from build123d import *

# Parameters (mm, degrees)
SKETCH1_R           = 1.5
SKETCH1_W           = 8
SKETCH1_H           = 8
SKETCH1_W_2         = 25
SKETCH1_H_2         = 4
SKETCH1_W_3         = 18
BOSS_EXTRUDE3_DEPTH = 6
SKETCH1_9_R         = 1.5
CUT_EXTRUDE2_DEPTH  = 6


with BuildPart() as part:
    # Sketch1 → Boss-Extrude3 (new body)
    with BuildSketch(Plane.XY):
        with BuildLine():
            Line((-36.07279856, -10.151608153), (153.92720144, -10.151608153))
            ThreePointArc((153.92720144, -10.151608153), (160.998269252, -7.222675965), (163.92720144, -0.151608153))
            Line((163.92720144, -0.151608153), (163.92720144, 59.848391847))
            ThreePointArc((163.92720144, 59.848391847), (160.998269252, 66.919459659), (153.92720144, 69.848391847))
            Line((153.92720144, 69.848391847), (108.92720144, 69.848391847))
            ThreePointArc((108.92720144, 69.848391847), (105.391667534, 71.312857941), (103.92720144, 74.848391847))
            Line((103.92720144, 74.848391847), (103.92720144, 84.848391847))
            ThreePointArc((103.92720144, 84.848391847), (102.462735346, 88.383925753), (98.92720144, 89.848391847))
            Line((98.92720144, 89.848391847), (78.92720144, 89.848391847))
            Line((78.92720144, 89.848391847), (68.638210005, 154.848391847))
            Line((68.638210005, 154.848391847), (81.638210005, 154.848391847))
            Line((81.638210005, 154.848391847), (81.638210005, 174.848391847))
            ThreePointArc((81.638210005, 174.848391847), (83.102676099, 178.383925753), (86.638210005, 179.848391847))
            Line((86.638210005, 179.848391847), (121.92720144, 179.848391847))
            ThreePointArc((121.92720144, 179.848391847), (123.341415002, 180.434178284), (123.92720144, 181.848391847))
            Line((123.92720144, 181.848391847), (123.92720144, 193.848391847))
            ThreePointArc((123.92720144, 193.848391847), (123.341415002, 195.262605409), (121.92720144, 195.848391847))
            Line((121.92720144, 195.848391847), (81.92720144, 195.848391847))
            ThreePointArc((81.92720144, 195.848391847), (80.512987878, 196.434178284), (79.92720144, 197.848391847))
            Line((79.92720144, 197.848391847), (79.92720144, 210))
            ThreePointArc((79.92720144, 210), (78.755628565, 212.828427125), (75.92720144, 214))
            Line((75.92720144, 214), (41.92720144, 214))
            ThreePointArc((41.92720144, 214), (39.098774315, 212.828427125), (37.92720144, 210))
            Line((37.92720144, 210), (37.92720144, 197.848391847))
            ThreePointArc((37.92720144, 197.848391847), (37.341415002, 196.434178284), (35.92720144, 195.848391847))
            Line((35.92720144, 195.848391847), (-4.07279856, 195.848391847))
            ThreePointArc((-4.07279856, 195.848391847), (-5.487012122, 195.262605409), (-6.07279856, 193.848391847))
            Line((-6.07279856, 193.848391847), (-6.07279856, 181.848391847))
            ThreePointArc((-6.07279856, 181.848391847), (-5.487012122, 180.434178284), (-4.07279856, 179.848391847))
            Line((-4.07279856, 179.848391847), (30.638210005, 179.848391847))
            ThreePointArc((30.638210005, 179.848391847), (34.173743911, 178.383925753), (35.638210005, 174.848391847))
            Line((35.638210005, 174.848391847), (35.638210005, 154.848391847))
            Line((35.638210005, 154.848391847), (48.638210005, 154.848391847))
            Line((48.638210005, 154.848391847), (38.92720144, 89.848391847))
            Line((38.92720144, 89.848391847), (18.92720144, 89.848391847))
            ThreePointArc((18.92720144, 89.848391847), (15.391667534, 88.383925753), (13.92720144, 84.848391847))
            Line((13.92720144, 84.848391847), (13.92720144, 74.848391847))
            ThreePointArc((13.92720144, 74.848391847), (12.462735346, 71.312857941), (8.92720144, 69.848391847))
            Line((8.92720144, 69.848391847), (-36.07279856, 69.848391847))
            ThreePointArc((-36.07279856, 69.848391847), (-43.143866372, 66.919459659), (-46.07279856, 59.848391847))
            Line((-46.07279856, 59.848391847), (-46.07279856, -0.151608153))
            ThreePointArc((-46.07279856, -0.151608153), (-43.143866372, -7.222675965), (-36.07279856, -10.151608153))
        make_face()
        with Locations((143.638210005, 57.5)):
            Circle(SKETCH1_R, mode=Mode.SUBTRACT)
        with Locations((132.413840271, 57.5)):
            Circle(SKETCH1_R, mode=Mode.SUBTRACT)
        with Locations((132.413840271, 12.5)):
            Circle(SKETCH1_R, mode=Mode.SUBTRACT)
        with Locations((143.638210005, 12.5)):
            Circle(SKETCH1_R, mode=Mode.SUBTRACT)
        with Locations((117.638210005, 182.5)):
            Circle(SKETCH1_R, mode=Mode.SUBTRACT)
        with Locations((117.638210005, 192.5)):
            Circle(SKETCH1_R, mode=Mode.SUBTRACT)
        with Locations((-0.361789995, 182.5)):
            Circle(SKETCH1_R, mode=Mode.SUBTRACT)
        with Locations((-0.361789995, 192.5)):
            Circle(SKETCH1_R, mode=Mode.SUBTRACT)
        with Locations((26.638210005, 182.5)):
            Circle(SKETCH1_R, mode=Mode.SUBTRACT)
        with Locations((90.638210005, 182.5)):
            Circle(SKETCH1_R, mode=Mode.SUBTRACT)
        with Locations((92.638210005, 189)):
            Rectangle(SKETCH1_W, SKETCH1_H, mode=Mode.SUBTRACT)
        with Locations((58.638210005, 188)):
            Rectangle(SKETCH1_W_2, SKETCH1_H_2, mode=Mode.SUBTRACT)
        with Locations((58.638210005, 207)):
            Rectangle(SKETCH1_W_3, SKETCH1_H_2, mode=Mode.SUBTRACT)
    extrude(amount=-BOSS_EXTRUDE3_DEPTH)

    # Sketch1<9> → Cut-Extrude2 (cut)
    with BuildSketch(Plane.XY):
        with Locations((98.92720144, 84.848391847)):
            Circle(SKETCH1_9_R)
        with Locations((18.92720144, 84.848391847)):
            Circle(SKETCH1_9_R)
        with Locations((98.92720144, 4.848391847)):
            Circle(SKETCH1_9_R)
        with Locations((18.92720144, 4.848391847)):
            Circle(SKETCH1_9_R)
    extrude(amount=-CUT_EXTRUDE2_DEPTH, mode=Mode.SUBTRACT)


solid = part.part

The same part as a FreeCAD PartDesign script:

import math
import FreeCAD as App
import Part
import Sketcher

V = App.Vector
Q = App.Units.Quantity

doc = App.newDocument("Part")
params = doc.addObject("Spreadsheet::Sheet", "Params")
for row, (alias, value) in enumerate([
    ("sketch1_diameter", "3 mm"),
    ("sketch1_radius", "10 mm"),
    ("sketch1_radius2", "5 mm"),
    ("sketch1_radius3", "2 mm"),
    ("sketch1_radius4", "4 mm"),
    ("pad1_length", "6 mm"),
    ("sketch2_diameter", "3 mm"),
    ("pocket1_length", "6 mm"),
], start=1):
    params.set(f"A{row}", alias)
    params.set(f"B{row}", "=" + value)
    params.setAlias(f"B{row}", alias)

body = doc.addObject("PartDesign::Body", "Body")

# Sketch on XY plane
sketch1 = body.newObject("Sketcher::SketchObject", "Sketch")
sketch1.AttachmentSupport = (doc.getObject("XY_Plane"), [""])
sketch1.MapMode = "FlatFace"
sketch1.addGeometry(Part.LineSegment(V(-36.1, -10.2, 0), V(153.9, -10.2, 0)), False)
sketch1.addGeometry(Part.ArcOfCircle(Part.Circle(V(153.9, -0.2, 0), V(0, 0, 1), 10), math.radians(-90), math.radians(0)), False)
sketch1.addGeometry(Part.LineSegment(V(163.9, -0.2, 0), V(163.9, 59.8, 0)), False)
sketch1.addGeometry(Part.ArcOfCircle(Part.Circle(V(153.9, 59.8, 0), V(0, 0, 1), 10), math.radians(0), math.radians(90)), False)
sketch1.addGeometry(Part.LineSegment(V(153.9, 69.8, 0), V(108.9, 69.8, 0)), False)
sketch1.addGeometry(Part.ArcOfCircle(Part.Circle(V(108.9, 74.8, 0), V(0, 0, 1), 5), math.radians(180), math.radians(270)), False)
sketch1.addGeometry(Part.LineSegment(V(103.9, 74.8, 0), V(103.9, 84.8, 0)), False)
sketch1.addGeometry(Part.ArcOfCircle(Part.Circle(V(98.9, 84.8, 0), V(0, 0, 1), 5), math.radians(0), math.radians(90)), False)
sketch1.addGeometry(Part.LineSegment(V(98.9, 89.8, 0), V(78.9, 89.8, 0)), False)
sketch1.addGeometry(Part.LineSegment(V(78.9, 89.8, 0), V(68.6, 154.8, 0)), False)
sketch1.addGeometry(Part.LineSegment(V(68.6, 154.8, 0), V(81.6, 154.8, 0)), False)
sketch1.addGeometry(Part.LineSegment(V(81.6, 154.8, 0), V(81.6, 174.8, 0)), False)
sketch1.addGeometry(Part.ArcOfCircle(Part.Circle(V(86.6, 174.8, 0), V(0, 0, 1), 5), math.radians(90), math.radians(180)), False)
sketch1.addGeometry(Part.LineSegment(V(86.6, 179.8, 0), V(121.9, 179.8, 0)), False)
sketch1.addGeometry(Part.ArcOfCircle(Part.Circle(V(121.9, 181.8, 0), V(0, 0, 1), 2), math.radians(-90), math.radians(0)), False)
sketch1.addGeometry(Part.LineSegment(V(123.9, 181.8, 0), V(123.9, 193.8, 0)), False)
sketch1.addGeometry(Part.ArcOfCircle(Part.Circle(V(121.9, 193.8, 0), V(0, 0, 1), 2), math.radians(0), math.radians(90)), False)
sketch1.addGeometry(Part.LineSegment(V(121.9, 195.8, 0), V(81.9, 195.8, 0)), False)
sketch1.addGeometry(Part.ArcOfCircle(Part.Circle(V(81.9, 197.8, 0), V(0, 0, 1), 2), math.radians(180), math.radians(270)), False)
sketch1.addGeometry(Part.LineSegment(V(79.9, 197.8, 0), V(79.9, 210, 0)), False)
sketch1.addGeometry(Part.ArcOfCircle(Part.Circle(V(75.9, 210, 0), V(0, 0, 1), 4), math.radians(0), math.radians(90)), False)
sketch1.addGeometry(Part.LineSegment(V(75.9, 214, 0), V(41.9, 214, 0)), False)
sketch1.addGeometry(Part.ArcOfCircle(Part.Circle(V(41.9, 210, 0), V(0, 0, 1), 4), math.radians(90), math.radians(180)), False)
sketch1.addGeometry(Part.LineSegment(V(37.9, 210, 0), V(37.9, 197.8, 0)), False)
sketch1.addGeometry(Part.ArcOfCircle(Part.Circle(V(35.9, 197.8, 0), V(0, 0, 1), 2), math.radians(-90), math.radians(0)), False)
sketch1.addGeometry(Part.LineSegment(V(35.9, 195.8, 0), V(-4.1, 195.8, 0)), False)
sketch1.addGeometry(Part.ArcOfCircle(Part.Circle(V(-4.1, 193.8, 0), V(0, 0, 1), 2), math.radians(90), math.radians(180)), False)
sketch1.addGeometry(Part.LineSegment(V(-6.1, 193.8, 0), V(-6.1, 181.8, 0)), False)
sketch1.addGeometry(Part.ArcOfCircle(Part.Circle(V(-4.1, 181.8, 0), V(0, 0, 1), 2), math.radians(180), math.radians(270)), False)
sketch1.addGeometry(Part.LineSegment(V(-4.1, 179.8, 0), V(30.6, 179.8, 0)), False)
sketch1.addGeometry(Part.ArcOfCircle(Part.Circle(V(30.6, 174.8, 0), V(0, 0, 1), 5), math.radians(0), math.radians(90)), False)
sketch1.addGeometry(Part.LineSegment(V(35.6, 174.8, 0), V(35.6, 154.8, 0)), False)
sketch1.addGeometry(Part.LineSegment(V(35.6, 154.8, 0), V(48.6, 154.8, 0)), False)
sketch1.addGeometry(Part.LineSegment(V(48.6, 154.8, 0), V(38.9, 89.8, 0)), False)
sketch1.addGeometry(Part.LineSegment(V(38.9, 89.8, 0), V(18.9, 89.8, 0)), False)
sketch1.addGeometry(Part.ArcOfCircle(Part.Circle(V(18.9, 84.8, 0), V(0, 0, 1), 5), math.radians(90), math.radians(180)), False)
sketch1.addGeometry(Part.LineSegment(V(13.9, 84.8, 0), V(13.9, 74.8, 0)), False)
sketch1.addGeometry(Part.ArcOfCircle(Part.Circle(V(8.9, 74.8, 0), V(0, 0, 1), 5), math.radians(-90), math.radians(0)), False)
sketch1.addGeometry(Part.LineSegment(V(8.9, 69.8, 0), V(-36.1, 69.8, 0)), False)
sketch1.addGeometry(Part.ArcOfCircle(Part.Circle(V(-36.1, 59.8, 0), V(0, 0, 1), 10), math.radians(90), math.radians(180)), False)
sketch1.addGeometry(Part.LineSegment(V(-46.1, 59.8, 0), V(-46.1, -0.2, 0)), False)
sketch1.addGeometry(Part.ArcOfCircle(Part.Circle(V(-36.1, -0.2, 0), V(0, 0, 1), 10), math.radians(180), math.radians(270)), False)
sketch1.addGeometry(Part.Circle(V(132.4, 12.5, 0), V(0, 0, 1), 1.5), False)
sketch1.addGeometry(Part.Circle(V(143.6, 12.5, 0), V(0, 0, 1), 1.5), False)
sketch1.addGeometry(Part.Circle(V(132.4, 57.5, 0), V(0, 0, 1), 1.5), False)
sketch1.addGeometry(Part.Circle(V(143.6, 57.5, 0), V(0, 0, 1), 1.5), False)
sketch1.addGeometry(Part.Circle(V(-0.4, 182.5, 0), V(0, 0, 1), 1.5), False)
sketch1.addGeometry(Part.Circle(V(26.6, 182.5, 0), V(0, 0, 1), 1.5), False)
sketch1.addGeometry(Part.Circle(V(-0.4, 192.5, 0), V(0, 0, 1), 1.5), False)
sketch1.addGeometry(Part.LineSegment(V(71.1, 186, 0), V(46.1, 186, 0)), False)
sketch1.addGeometry(Part.LineSegment(V(46.1, 186, 0), V(46.1, 190, 0)), False)
sketch1.addGeometry(Part.LineSegment(V(46.1, 190, 0), V(71.1, 190, 0)), False)
sketch1.addGeometry(Part.LineSegment(V(71.1, 190, 0), V(71.1, 186, 0)), False)
sketch1.addGeometry(Part.LineSegment(V(67.6, 205, 0), V(49.6, 205, 0)), False)
sketch1.addGeometry(Part.LineSegment(V(49.6, 205, 0), V(49.6, 209, 0)), False)
sketch1.addGeometry(Part.LineSegment(V(49.6, 209, 0), V(67.6, 209, 0)), False)
sketch1.addGeometry(Part.LineSegment(V(67.6, 209, 0), V(67.6, 205, 0)), False)
sketch1.addGeometry(Part.Circle(V(90.6, 182.5, 0), V(0, 0, 1), 1.5), False)
sketch1.addGeometry(Part.LineSegment(V(96.6, 185, 0), V(88.6, 185, 0)), False)
sketch1.addGeometry(Part.LineSegment(V(88.6, 185, 0), V(88.6, 193, 0)), False)
sketch1.addGeometry(Part.LineSegment(V(88.6, 193, 0), V(96.6, 193, 0)), False)
sketch1.addGeometry(Part.LineSegment(V(96.6, 193, 0), V(96.6, 185, 0)), False)
sketch1.addGeometry(Part.Circle(V(117.6, 182.5, 0), V(0, 0, 1), 1.5), False)
sketch1.addGeometry(Part.Circle(V(117.6, 192.5, 0), V(0, 0, 1), 1.5), False)
sketch1.addConstraint(Sketcher.Constraint("Tangent", 0, 2, 1, 1))
sketch1.addConstraint(Sketcher.Constraint("Tangent", 1, 2, 2, 1))
sketch1.addConstraint(Sketcher.Constraint("Tangent", 2, 2, 3, 1))
sketch1.addConstraint(Sketcher.Constraint("Tangent", 3, 2, 4, 1))
sketch1.addConstraint(Sketcher.Constraint("Tangent", 4, 2, 5, 2))
sketch1.addConstraint(Sketcher.Constraint("Tangent", 5, 1, 6, 1))
sketch1.addConstraint(Sketcher.Constraint("Tangent", 6, 2, 7, 1))
sketch1.addConstraint(Sketcher.Constraint("Tangent", 7, 2, 8, 1))
sketch1.addConstraint(Sketcher.Constraint("Coincident", 8, 2, 9, 1))
sketch1.addConstraint(Sketcher.Constraint("Coincident", 9, 2, 10, 1))
sketch1.addConstraint(Sketcher.Constraint("Coincident", 10, 2, 11, 1))
sketch1.addConstraint(Sketcher.Constraint("Tangent", 11, 2, 12, 2))
sketch1.addConstraint(Sketcher.Constraint("Tangent", 12, 1, 13, 1))
sketch1.addConstraint(Sketcher.Constraint("Tangent", 13, 2, 14, 1))
sketch1.addConstraint(Sketcher.Constraint("Tangent", 14, 2, 15, 1))
sketch1.addConstraint(Sketcher.Constraint("Tangent", 15, 2, 16, 1))
sketch1.addConstraint(Sketcher.Constraint("Tangent", 16, 2, 17, 1))
sketch1.addConstraint(Sketcher.Constraint("Tangent", 17, 2, 18, 2))
sketch1.addConstraint(Sketcher.Constraint("Tangent", 18, 1, 19, 1))
sketch1.addConstraint(Sketcher.Constraint("Tangent", 19, 2, 20, 1))
sketch1.addConstraint(Sketcher.Constraint("Tangent", 20, 2, 21, 1))
sketch1.addConstraint(Sketcher.Constraint("Tangent", 21, 2, 22, 1))
sketch1.addConstraint(Sketcher.Constraint("Tangent", 22, 2, 23, 1))
sketch1.addConstraint(Sketcher.Constraint("Tangent", 23, 2, 24, 2))
sketch1.addConstraint(Sketcher.Constraint("Tangent", 24, 1, 25, 1))
sketch1.addConstraint(Sketcher.Constraint("Tangent", 25, 2, 26, 1))
sketch1.addConstraint(Sketcher.Constraint("Tangent", 26, 2, 27, 1))
sketch1.addConstraint(Sketcher.Constraint("Tangent", 27, 2, 28, 1))
sketch1.addConstraint(Sketcher.Constraint("Tangent", 28, 2, 29, 1))
sketch1.addConstraint(Sketcher.Constraint("Tangent", 29, 2, 30, 2))
sketch1.addConstraint(Sketcher.Constraint("Tangent", 30, 1, 31, 1))
sketch1.addConstraint(Sketcher.Constraint("Coincident", 31, 2, 32, 1))
sketch1.addConstraint(Sketcher.Constraint("Coincident", 32, 2, 33, 1))
sketch1.addConstraint(Sketcher.Constraint("Coincident", 33, 2, 34, 1))
sketch1.addConstraint(Sketcher.Constraint("Tangent", 34, 2, 35, 1))
sketch1.addConstraint(Sketcher.Constraint("Tangent", 35, 2, 36, 1))
sketch1.addConstraint(Sketcher.Constraint("Tangent", 36, 2, 37, 2))
sketch1.addConstraint(Sketcher.Constraint("Tangent", 37, 1, 38, 1))
sketch1.addConstraint(Sketcher.Constraint("Tangent", 38, 2, 39, 1))
sketch1.addConstraint(Sketcher.Constraint("Tangent", 39, 2, 40, 1))
sketch1.addConstraint(Sketcher.Constraint("Tangent", 40, 2, 41, 1))
sketch1.addConstraint(Sketcher.Constraint("Tangent", 41, 2, 0, 1))
sketch1.addConstraint(Sketcher.Constraint("Coincident", 49, 2, 50, 1))
sketch1.addConstraint(Sketcher.Constraint("Coincident", 50, 2, 51, 1))
sketch1.addConstraint(Sketcher.Constraint("Coincident", 51, 2, 52, 1))
sketch1.addConstraint(Sketcher.Constraint("Coincident", 52, 2, 49, 1))
sketch1.addConstraint(Sketcher.Constraint("Coincident", 53, 2, 54, 1))
sketch1.addConstraint(Sketcher.Constraint("Coincident", 54, 2, 55, 1))
sketch1.addConstraint(Sketcher.Constraint("Coincident", 55, 2, 56, 1))
sketch1.addConstraint(Sketcher.Constraint("Coincident", 56, 2, 53, 1))
sketch1.addConstraint(Sketcher.Constraint("Coincident", 58, 2, 59, 1))
sketch1.addConstraint(Sketcher.Constraint("Coincident", 59, 2, 60, 1))
sketch1.addConstraint(Sketcher.Constraint("Coincident", 60, 2, 61, 1))
sketch1.addConstraint(Sketcher.Constraint("Coincident", 61, 2, 58, 1))
sketch1.addConstraint(Sketcher.Constraint("Horizontal", 0))
sketch1.addConstraint(Sketcher.Constraint("Vertical", 2))
sketch1.addConstraint(Sketcher.Constraint("Horizontal", 4))
sketch1.addConstraint(Sketcher.Constraint("Vertical", 6))
sketch1.addConstraint(Sketcher.Constraint("Horizontal", 8))
sketch1.addConstraint(Sketcher.Constraint("Horizontal", 10))
sketch1.addConstraint(Sketcher.Constraint("Vertical", 11))
sketch1.addConstraint(Sketcher.Constraint("Horizontal", 13))
sketch1.addConstraint(Sketcher.Constraint("Vertical", 15))
sketch1.addConstraint(Sketcher.Constraint("Horizontal", 17))
sketch1.addConstraint(Sketcher.Constraint("Vertical", 19))
sketch1.addConstraint(Sketcher.Constraint("Horizontal", 21))
sketch1.addConstraint(Sketcher.Constraint("Vertical", 23))
sketch1.addConstraint(Sketcher.Constraint("Horizontal", 25))
sketch1.addConstraint(Sketcher.Constraint("Vertical", 27))
sketch1.addConstraint(Sketcher.Constraint("Horizontal", 29))
sketch1.addConstraint(Sketcher.Constraint("Vertical", 31))
sketch1.addConstraint(Sketcher.Constraint("Horizontal", 32))
sketch1.addConstraint(Sketcher.Constraint("Horizontal", 34))
sketch1.addConstraint(Sketcher.Constraint("Vertical", 36))
sketch1.addConstraint(Sketcher.Constraint("Horizontal", 38))
sketch1.addConstraint(Sketcher.Constraint("Vertical", 40))
sketch1.addConstraint(Sketcher.Constraint("Horizontal", 49))
sketch1.addConstraint(Sketcher.Constraint("Vertical", 50))
sketch1.addConstraint(Sketcher.Constraint("Horizontal", 51))
sketch1.addConstraint(Sketcher.Constraint("Vertical", 52))
sketch1.addConstraint(Sketcher.Constraint("Horizontal", 53))
sketch1.addConstraint(Sketcher.Constraint("Vertical", 54))
sketch1.addConstraint(Sketcher.Constraint("Horizontal", 55))
sketch1.addConstraint(Sketcher.Constraint("Vertical", 56))
sketch1.addConstraint(Sketcher.Constraint("Horizontal", 58))
sketch1.addConstraint(Sketcher.Constraint("Vertical", 59))
sketch1.addConstraint(Sketcher.Constraint("Horizontal", 60))
sketch1.addConstraint(Sketcher.Constraint("Vertical", 61))
sketch1.addConstraint(Sketcher.Constraint("Equal", 1, 3))
sketch1.addConstraint(Sketcher.Constraint("Equal", 5, 7))
sketch1.addConstraint(Sketcher.Constraint("Equal", 7, 12))
sketch1.addConstraint(Sketcher.Constraint("Equal", 14, 16))
sketch1.addConstraint(Sketcher.Constraint("Equal", 16, 18))
sketch1.addConstraint(Sketcher.Constraint("Equal", 20, 22))
sketch1.addConstraint(Sketcher.Constraint("Equal", 18, 24))
sketch1.addConstraint(Sketcher.Constraint("Equal", 24, 26))
sketch1.addConstraint(Sketcher.Constraint("Equal", 26, 28))
sketch1.addConstraint(Sketcher.Constraint("Equal", 12, 30))
sketch1.addConstraint(Sketcher.Constraint("Equal", 30, 35))
sketch1.addConstraint(Sketcher.Constraint("Equal", 35, 37))
sketch1.addConstraint(Sketcher.Constraint("Equal", 3, 39))
sketch1.addConstraint(Sketcher.Constraint("Equal", 39, 41))
sketch1.addConstraint(Sketcher.Constraint("Equal", 42, 43))
sketch1.addConstraint(Sketcher.Constraint("Equal", 43, 44))
sketch1.addConstraint(Sketcher.Constraint("Equal", 44, 45))
sketch1.addConstraint(Sketcher.Constraint("Equal", 45, 46))
sketch1.addConstraint(Sketcher.Constraint("Equal", 46, 47))
sketch1.addConstraint(Sketcher.Constraint("Equal", 47, 48))
sketch1.addConstraint(Sketcher.Constraint("Equal", 48, 57))
sketch1.addConstraint(Sketcher.Constraint("Equal", 57, 62))
sketch1.addConstraint(Sketcher.Constraint("Equal", 62, 63))
sketch1.addConstraint(Sketcher.Constraint("Horizontal", 18, 3, 24, 3))
sketch1.addConstraint(Sketcher.Constraint("Horizontal", 14, 3, 28, 3))
sketch1.addConstraint(Sketcher.Constraint("Horizontal", 7, 3, 35, 3))
sketch1.addConstraint(Sketcher.Constraint("Horizontal", 5, 3, 37, 3))
sketch1.addConstraint(Sketcher.Constraint("Horizontal", 42, 3, 43, 3))
sketch1.addConstraint(Sketcher.Constraint("Horizontal", 44, 3, 45, 3))
sketch1.addConstraint(Sketcher.Constraint("Horizontal", 46, 3, 47, 3))
sketch1.addConstraint(Sketcher.Constraint("Horizontal", 47, 3, 57, 3))
sketch1.addConstraint(Sketcher.Constraint("Horizontal", 57, 3, 62, 3))
sketch1.addConstraint(Sketcher.Constraint("Horizontal", 48, 3, 63, 3))
sketch1.addConstraint(Sketcher.Constraint("Horizontal", 10, 2, 31, 2))
sketch1.addConstraint(Sketcher.Constraint("Vertical", 42, 3, 44, 3))
sketch1.addConstraint(Sketcher.Constraint("Vertical", 43, 3, 45, 3))
sketch1.addConstraint(Sketcher.Constraint("Vertical", 46, 3, 48, 3))
sketch1.addConstraint(Sketcher.Constraint("Vertical", 62, 3, 63, 3))
sketch1.addConstraint(Sketcher.Constraint("Equal", 17, 25))
sketch1.addConstraint(Sketcher.Constraint("Equal", 10, 32))
sketch1.addConstraint(Sketcher.Constraint("Equal", 8, 34))
sketch1.addConstraint(Sketcher.Constraint("Equal", 4, 38))
sketch1.addConstraint(Sketcher.Constraint("Equal", 34, 11))
sketch1.addConstraint(Sketcher.Constraint("Equal", 52, 54))
sketch1.addConstraint(Sketcher.Constraint("Equal", 60, 59))
sketch1.addConstraint(Sketcher.Constraint("Diameter", 42, Q("3 mm")))
sketch1.addConstraint(Sketcher.Constraint("Radius", 1, Q("10 mm")))
sketch1.addConstraint(Sketcher.Constraint("Radius", 5, Q("5 mm")))
sketch1.addConstraint(Sketcher.Constraint("Radius", 14, Q("2 mm")))
sketch1.addConstraint(Sketcher.Constraint("Radius", 20, Q("4 mm")))
sketch1.addConstraint(Sketcher.Constraint("DistanceX", 0, 1, 0, 2, Q("190 mm")))
sketch1.addConstraint(Sketcher.Constraint("DistanceX", 4, 2, 4, 1, Q("45 mm")))
sketch1.addConstraint(Sketcher.Constraint("DistanceX", 8, 2, 8, 1, Q("20 mm")))
sketch1.addConstraint(Sketcher.Constraint("DistanceX", 10, 1, 10, 2, Q("13 mm")))
sketch1.addConstraint(Sketcher.Constraint("DistanceX", 17, 2, 17, 1, Q("40 mm")))
sketch1.addConstraint(Sketcher.Constraint("DistanceX", 21, 2, 21, 1, Q("34 mm")))
sketch1.addConstraint(Sketcher.Constraint("DistanceX", 49, 2, 49, 1, Q("25 mm")))
sketch1.addConstraint(Sketcher.Constraint("DistanceX", 53, 2, 53, 1, Q("18 mm")))
sketch1.addConstraint(Sketcher.Constraint("DistanceX", 58, 2, 58, 1, Q("8 mm")))
sketch1.addConstraint(Sketcher.Constraint("DistanceY", 2, 1, 2, 2, Q("60 mm")))
sketch1.addConstraint(Sketcher.Constraint("DistanceY", 6, 1, 6, 2, Q("10 mm")))
sketch1.addConstraint(Sketcher.Constraint("DistanceY", 15, 1, 15, 2, Q("12 mm")))
sketch1.addConstraint(Sketcher.Constraint("DistanceY", 50, 1, 50, 2, Q("4 mm")))
sketch1.addConstraint(Sketcher.Constraint("DistanceY", -1, 1, 20, 3, Q("210 mm")))
sketch1.addConstraint(Sketcher.Constraint("DistanceY", -1, 1, 49, 2, Q("186 mm")))
sketch1.addConstraint(Sketcher.Constraint("DistanceY", -1, 1, 53, 2, Q("205 mm")))
sketch1.addConstraint(Sketcher.Constraint("DistanceY", -1, 1, 58, 2, Q("185 mm")))
sketch1.addConstraint(Sketcher.Constraint("DistanceY", -1, 1, 42, 3, Q("12.5 mm")))
sketch1.addConstraint(Sketcher.Constraint("DistanceY", -1, 1, 44, 3, Q("57.5 mm")))
sketch1.addConstraint(Sketcher.Constraint("DistanceY", -1, 1, 46, 3, Q("182.5 mm")))
sketch1.addConstraint(Sketcher.Constraint("DistanceY", -1, 1, 48, 3, Q("192.5 mm")))
sketch1.addConstraint(Sketcher.Constraint("DistanceX", 13, 1, 13, 2, Q("35.288991 mm")))
sketch1.addConstraint(Sketcher.Constraint("DistanceX", 29, 1, 29, 2, Q("34.711009 mm")))
sketch1.addConstraint(Sketcher.Constraint("DistanceY", 19, 1, 19, 2, Q("12.151608 mm")))
sketch1.addConstraint(Sketcher.Constraint("DistanceX", -1, 1, 1, 3, Q("153.927201 mm")))
sketch1.addConstraint(Sketcher.Constraint("DistanceX", -1, 1, 14, 3, Q("121.927201 mm")))
sketch1.addConstraint(Sketcher.Constraint("Distance", 33, Q("65.72141 mm")))
sketch1.addConstraint(Sketcher.Constraint("DistanceX", -1, 1, 42, 3, Q("132.41384 mm")))
sketch1.addConstraint(Sketcher.Constraint("DistanceX", -1, 1, 43, 3, Q("143.63821 mm")))
sketch1.addConstraint(Sketcher.Constraint("DistanceX", 46, 3, -1, 1, Q("0.36179 mm")))
sketch1.addConstraint(Sketcher.Constraint("DistanceX", -1, 1, 47, 3, Q("26.63821 mm")))
sketch1.addConstraint(Sketcher.Constraint("DistanceX", -1, 1, 57, 3, Q("90.63821 mm")))
sketch1.addConstraint(Sketcher.Constraint("DistanceX", -1, 1, 62, 3, Q("117.63821 mm")))
sketch1.addConstraint(Sketcher.Constraint("DistanceX", -1, 1, 49, 2, Q("46.13821 mm")))
sketch1.addConstraint(Sketcher.Constraint("DistanceX", -1, 1, 53, 2, Q("49.63821 mm")))
sketch1.addConstraint(Sketcher.Constraint("DistanceX", -1, 1, 58, 2, Q("88.63821 mm")))
sketch1.setExpression("Constraints[133]", "Params.sketch1_diameter")
sketch1.setExpression("Constraints[134]", "Params.sketch1_radius")
sketch1.setExpression("Constraints[135]", "Params.sketch1_radius2")
sketch1.setExpression("Constraints[136]", "Params.sketch1_radius3")
sketch1.setExpression("Constraints[137]", "Params.sketch1_radius4")
pad1 = body.newObject("PartDesign::Pad", "Pad")
pad1.Profile = sketch1
pad1.setExpression("Length", "Params.pad1_length")
pad1.Reversed = True

# Sketch on XY plane
sketch2 = body.newObject("Sketcher::SketchObject", "Sketch001")
sketch2.AttachmentSupport = (doc.getObject("XY_Plane"), [""])
sketch2.MapMode = "FlatFace"
sketch2.addGeometry(Part.Circle(V(98.9, 84.8, 0), V(0, 0, 1), 1.5), False)
sketch2.addGeometry(Part.Circle(V(18.9, 84.8, 0), V(0, 0, 1), 1.5), False)
sketch2.addGeometry(Part.Circle(V(98.9, 4.8, 0), V(0, 0, 1), 1.5), False)
sketch2.addGeometry(Part.Circle(V(18.9, 4.8, 0), V(0, 0, 1), 1.5), False)
sketch2.addConstraint(Sketcher.Constraint("Equal", 0, 1))
sketch2.addConstraint(Sketcher.Constraint("Equal", 1, 2))
sketch2.addConstraint(Sketcher.Constraint("Equal", 2, 3))
sketch2.addConstraint(Sketcher.Constraint("Horizontal", 0, 3, 1, 3))
sketch2.addConstraint(Sketcher.Constraint("Horizontal", 2, 3, 3, 3))
sketch2.addConstraint(Sketcher.Constraint("Vertical", 0, 3, 2, 3))
sketch2.addConstraint(Sketcher.Constraint("Vertical", 1, 3, 3, 3))
sketch2.addConstraint(Sketcher.Constraint("Diameter", 0, Q("3 mm")))
sketch2.addConstraint(Sketcher.Constraint("DistanceX", 1, 3, 0, 3, Q("80 mm")))
sketch2.addConstraint(Sketcher.Constraint("DistanceY", 2, 3, 0, 3, Q("80 mm")))
sketch2.addConstraint(Sketcher.Constraint("DistanceX", -1, 1, 0, 3, Q("98.927201 mm")))
sketch2.addConstraint(Sketcher.Constraint("DistanceY", -1, 1, 0, 3, Q("84.848392 mm")))
sketch2.setExpression("Constraints[7]", "Params.sketch2_diameter")
pocket1 = body.newObject("PartDesign::Pocket", "Pocket")
pocket1.Profile = sketch2
pocket1.setExpression("Length", "Params.pocket1_length")

doc.recompute()
